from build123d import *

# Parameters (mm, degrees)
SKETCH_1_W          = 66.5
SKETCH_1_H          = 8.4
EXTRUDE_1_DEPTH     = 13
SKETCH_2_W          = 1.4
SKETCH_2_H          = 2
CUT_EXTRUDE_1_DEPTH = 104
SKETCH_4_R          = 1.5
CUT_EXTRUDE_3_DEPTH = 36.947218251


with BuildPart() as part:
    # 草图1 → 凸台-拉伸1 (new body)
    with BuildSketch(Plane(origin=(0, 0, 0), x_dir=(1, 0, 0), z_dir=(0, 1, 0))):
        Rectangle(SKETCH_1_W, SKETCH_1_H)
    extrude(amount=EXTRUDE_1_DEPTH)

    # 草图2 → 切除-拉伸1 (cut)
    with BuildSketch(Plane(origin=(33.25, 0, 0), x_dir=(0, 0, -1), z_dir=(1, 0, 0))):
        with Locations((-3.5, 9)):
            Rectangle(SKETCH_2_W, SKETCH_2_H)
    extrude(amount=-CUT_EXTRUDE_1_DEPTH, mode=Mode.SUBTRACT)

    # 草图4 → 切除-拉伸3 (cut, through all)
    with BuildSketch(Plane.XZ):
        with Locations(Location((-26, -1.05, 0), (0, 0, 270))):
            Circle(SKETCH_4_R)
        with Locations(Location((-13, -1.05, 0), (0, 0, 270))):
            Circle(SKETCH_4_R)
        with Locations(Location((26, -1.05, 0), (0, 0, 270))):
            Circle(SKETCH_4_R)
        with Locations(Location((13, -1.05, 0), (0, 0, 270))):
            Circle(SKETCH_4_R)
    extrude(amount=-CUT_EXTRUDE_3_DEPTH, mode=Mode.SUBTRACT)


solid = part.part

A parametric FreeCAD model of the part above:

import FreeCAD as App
import Part
import Sketcher

V = App.Vector
Q = App.Units.Quantity


def add_polygon(sketch, points):
    """Adds a closed chain of lines whose ends are joined by coincident constraints."""
    first, n = sketch.GeometryCount, len(points)
    for a, b in zip(points, points[1:] + points[:1]):
        sketch.addGeometry(Part.LineSegment(App.Vector(*a, 0), App.Vector(*b, 0)), False)
    for i in range(n):
        sketch.addConstraint(Sketcher.Constraint("Coincident", first + i, 2, first + (i + 1) % n, 1))

doc = App.newDocument("Part")
body = doc.addObject("PartDesign::Body", "Body")

# Sketch on XZ plane
sketch1 = doc.addObject("Sketcher::SketchObject", "Sketch")
body.addObject(sketch1)
sketch1.AttachmentSupport = (doc.XZ_Plane, [""])
sketch1.MapMode = "FlatFace"
add_polygon(sketch1, [(-33.25, -4.2), (-33.25, 4.2), (33.25, 4.2), (33.25, -4.2)])  # lines 0-3
sketch1.addConstraint([
    Sketcher.Constraint("Vertical", 0),
    Sketcher.Constraint("Horizontal", 1),
    Sketcher.Constraint("Vertical", 2),
    Sketcher.Constraint("Horizontal", 3),
    Sketcher.Constraint("Symmetric", 0, 2, 2, 2, -1, 1),
    Sketcher.Constraint("DistanceX", 1, 1, 1, 2, Q("66.5 mm")),
    Sketcher.Constraint("DistanceY", 0, 1, 0, 2, Q("8.4 mm")),
])
pad1 = doc.addObject("PartDesign::Pad", "Pad")
body.addObject(pad1)
pad1.Profile = sketch1
pad1.Length = 13
pad1.Reversed = True

# Sketch on YZ plane
sketch2 = doc.addObject("Sketcher::SketchObject", "Sketch001")
body.addObject(sketch2)
sketch2.AttachmentSupport = (doc.YZ_Plane, [""])
sketch2.MapMode = "FlatFace"
sketch2.AttachmentOffset = App.Placement(V(0, 0, 33.25), App.Rotation())
add_polygon(sketch2, [(10, 4.2), (8, 4.2), (8, 2.8), (10, 2.8)])  # lines 0-3
sketch2.addConstraint([
    Sketcher.Constraint("Horizontal", 0),
    Sketcher.Constraint("Vertical", 1),
    Sketcher.Constraint("Horizontal", 2),
    Sketcher.Constraint("Vertical", 3),
    Sketcher.Constraint("DistanceX", 0, 2, 0, 1, Q("2 mm")),
    Sketcher.Constraint("DistanceY", 1, 2, 1, 1, Q("1.4 mm")),
    Sketcher.Constraint("DistanceX", -1, 1, 0, 2, Q("8 mm")),
    Sketcher.Constraint("DistanceY", -1, 1, 0, 2, Q("4.2 mm")),
])
pocket1 = doc.addObject("PartDesign::Pocket", "Pocket")
body.addObject(pocket1)
pocket1.Profile = sketch2
pocket1.Length = 104

# Sketch on XZ plane
sketch3 = doc.addObject("Sketcher::SketchObject", "Sketch002")
body.addObject(sketch3)
sketch3.AttachmentSupport = (doc.XZ_Plane, [""])
sketch3.MapMode = "FlatFace"
sketch3.addGeometry([
    Part.Circle(V(-26, -1.05, 0), V(0, 0, 1), 1.5),
    Part.Circle(V(-13, -1.05, 0), V(0, 0, 1), 1.5),
    Part.Circle(V(26, -1.05, 0), V(0, 0, 1), 1.5),
    Part.Circle(V(13, -1.05, 0), V(0, 0, 1), 1.5),
], False)
sketch3.addConstraint([
    Sketcher.Constraint("Equal", 0, 1),
    Sketcher.Constraint("Equal", 1, 2),
    Sketcher.Constraint("Equal", 2, 3),
    Sketcher.Constraint("Symmetric", 0, 3, 2, 3, -2),
    Sketcher.Constraint("Symmetric", 1, 3, 3, 3, -2),
    Sketcher.Constraint("Horizontal", 0, 3, 1, 3),
    Sketcher.Constraint("Diameter", 0, Q("3 mm")),
    Sketcher.Constraint("DistanceX", 0, 3, -1, 1, Q("26 mm")),
    Sketcher.Constraint("DistanceX", 1, 3, -1, 1, Q("13 mm")),
    Sketcher.Constraint("DistanceY", 0, 3, -1, 1, Q("1.05 mm")),
])
pocket2 = doc.addObject("PartDesign::Pocket", "Pocket001")
body.addObject(pocket2)
pocket2.Profile = sketch3
pocket2.Type = "ThroughAll"

doc.recompute()
